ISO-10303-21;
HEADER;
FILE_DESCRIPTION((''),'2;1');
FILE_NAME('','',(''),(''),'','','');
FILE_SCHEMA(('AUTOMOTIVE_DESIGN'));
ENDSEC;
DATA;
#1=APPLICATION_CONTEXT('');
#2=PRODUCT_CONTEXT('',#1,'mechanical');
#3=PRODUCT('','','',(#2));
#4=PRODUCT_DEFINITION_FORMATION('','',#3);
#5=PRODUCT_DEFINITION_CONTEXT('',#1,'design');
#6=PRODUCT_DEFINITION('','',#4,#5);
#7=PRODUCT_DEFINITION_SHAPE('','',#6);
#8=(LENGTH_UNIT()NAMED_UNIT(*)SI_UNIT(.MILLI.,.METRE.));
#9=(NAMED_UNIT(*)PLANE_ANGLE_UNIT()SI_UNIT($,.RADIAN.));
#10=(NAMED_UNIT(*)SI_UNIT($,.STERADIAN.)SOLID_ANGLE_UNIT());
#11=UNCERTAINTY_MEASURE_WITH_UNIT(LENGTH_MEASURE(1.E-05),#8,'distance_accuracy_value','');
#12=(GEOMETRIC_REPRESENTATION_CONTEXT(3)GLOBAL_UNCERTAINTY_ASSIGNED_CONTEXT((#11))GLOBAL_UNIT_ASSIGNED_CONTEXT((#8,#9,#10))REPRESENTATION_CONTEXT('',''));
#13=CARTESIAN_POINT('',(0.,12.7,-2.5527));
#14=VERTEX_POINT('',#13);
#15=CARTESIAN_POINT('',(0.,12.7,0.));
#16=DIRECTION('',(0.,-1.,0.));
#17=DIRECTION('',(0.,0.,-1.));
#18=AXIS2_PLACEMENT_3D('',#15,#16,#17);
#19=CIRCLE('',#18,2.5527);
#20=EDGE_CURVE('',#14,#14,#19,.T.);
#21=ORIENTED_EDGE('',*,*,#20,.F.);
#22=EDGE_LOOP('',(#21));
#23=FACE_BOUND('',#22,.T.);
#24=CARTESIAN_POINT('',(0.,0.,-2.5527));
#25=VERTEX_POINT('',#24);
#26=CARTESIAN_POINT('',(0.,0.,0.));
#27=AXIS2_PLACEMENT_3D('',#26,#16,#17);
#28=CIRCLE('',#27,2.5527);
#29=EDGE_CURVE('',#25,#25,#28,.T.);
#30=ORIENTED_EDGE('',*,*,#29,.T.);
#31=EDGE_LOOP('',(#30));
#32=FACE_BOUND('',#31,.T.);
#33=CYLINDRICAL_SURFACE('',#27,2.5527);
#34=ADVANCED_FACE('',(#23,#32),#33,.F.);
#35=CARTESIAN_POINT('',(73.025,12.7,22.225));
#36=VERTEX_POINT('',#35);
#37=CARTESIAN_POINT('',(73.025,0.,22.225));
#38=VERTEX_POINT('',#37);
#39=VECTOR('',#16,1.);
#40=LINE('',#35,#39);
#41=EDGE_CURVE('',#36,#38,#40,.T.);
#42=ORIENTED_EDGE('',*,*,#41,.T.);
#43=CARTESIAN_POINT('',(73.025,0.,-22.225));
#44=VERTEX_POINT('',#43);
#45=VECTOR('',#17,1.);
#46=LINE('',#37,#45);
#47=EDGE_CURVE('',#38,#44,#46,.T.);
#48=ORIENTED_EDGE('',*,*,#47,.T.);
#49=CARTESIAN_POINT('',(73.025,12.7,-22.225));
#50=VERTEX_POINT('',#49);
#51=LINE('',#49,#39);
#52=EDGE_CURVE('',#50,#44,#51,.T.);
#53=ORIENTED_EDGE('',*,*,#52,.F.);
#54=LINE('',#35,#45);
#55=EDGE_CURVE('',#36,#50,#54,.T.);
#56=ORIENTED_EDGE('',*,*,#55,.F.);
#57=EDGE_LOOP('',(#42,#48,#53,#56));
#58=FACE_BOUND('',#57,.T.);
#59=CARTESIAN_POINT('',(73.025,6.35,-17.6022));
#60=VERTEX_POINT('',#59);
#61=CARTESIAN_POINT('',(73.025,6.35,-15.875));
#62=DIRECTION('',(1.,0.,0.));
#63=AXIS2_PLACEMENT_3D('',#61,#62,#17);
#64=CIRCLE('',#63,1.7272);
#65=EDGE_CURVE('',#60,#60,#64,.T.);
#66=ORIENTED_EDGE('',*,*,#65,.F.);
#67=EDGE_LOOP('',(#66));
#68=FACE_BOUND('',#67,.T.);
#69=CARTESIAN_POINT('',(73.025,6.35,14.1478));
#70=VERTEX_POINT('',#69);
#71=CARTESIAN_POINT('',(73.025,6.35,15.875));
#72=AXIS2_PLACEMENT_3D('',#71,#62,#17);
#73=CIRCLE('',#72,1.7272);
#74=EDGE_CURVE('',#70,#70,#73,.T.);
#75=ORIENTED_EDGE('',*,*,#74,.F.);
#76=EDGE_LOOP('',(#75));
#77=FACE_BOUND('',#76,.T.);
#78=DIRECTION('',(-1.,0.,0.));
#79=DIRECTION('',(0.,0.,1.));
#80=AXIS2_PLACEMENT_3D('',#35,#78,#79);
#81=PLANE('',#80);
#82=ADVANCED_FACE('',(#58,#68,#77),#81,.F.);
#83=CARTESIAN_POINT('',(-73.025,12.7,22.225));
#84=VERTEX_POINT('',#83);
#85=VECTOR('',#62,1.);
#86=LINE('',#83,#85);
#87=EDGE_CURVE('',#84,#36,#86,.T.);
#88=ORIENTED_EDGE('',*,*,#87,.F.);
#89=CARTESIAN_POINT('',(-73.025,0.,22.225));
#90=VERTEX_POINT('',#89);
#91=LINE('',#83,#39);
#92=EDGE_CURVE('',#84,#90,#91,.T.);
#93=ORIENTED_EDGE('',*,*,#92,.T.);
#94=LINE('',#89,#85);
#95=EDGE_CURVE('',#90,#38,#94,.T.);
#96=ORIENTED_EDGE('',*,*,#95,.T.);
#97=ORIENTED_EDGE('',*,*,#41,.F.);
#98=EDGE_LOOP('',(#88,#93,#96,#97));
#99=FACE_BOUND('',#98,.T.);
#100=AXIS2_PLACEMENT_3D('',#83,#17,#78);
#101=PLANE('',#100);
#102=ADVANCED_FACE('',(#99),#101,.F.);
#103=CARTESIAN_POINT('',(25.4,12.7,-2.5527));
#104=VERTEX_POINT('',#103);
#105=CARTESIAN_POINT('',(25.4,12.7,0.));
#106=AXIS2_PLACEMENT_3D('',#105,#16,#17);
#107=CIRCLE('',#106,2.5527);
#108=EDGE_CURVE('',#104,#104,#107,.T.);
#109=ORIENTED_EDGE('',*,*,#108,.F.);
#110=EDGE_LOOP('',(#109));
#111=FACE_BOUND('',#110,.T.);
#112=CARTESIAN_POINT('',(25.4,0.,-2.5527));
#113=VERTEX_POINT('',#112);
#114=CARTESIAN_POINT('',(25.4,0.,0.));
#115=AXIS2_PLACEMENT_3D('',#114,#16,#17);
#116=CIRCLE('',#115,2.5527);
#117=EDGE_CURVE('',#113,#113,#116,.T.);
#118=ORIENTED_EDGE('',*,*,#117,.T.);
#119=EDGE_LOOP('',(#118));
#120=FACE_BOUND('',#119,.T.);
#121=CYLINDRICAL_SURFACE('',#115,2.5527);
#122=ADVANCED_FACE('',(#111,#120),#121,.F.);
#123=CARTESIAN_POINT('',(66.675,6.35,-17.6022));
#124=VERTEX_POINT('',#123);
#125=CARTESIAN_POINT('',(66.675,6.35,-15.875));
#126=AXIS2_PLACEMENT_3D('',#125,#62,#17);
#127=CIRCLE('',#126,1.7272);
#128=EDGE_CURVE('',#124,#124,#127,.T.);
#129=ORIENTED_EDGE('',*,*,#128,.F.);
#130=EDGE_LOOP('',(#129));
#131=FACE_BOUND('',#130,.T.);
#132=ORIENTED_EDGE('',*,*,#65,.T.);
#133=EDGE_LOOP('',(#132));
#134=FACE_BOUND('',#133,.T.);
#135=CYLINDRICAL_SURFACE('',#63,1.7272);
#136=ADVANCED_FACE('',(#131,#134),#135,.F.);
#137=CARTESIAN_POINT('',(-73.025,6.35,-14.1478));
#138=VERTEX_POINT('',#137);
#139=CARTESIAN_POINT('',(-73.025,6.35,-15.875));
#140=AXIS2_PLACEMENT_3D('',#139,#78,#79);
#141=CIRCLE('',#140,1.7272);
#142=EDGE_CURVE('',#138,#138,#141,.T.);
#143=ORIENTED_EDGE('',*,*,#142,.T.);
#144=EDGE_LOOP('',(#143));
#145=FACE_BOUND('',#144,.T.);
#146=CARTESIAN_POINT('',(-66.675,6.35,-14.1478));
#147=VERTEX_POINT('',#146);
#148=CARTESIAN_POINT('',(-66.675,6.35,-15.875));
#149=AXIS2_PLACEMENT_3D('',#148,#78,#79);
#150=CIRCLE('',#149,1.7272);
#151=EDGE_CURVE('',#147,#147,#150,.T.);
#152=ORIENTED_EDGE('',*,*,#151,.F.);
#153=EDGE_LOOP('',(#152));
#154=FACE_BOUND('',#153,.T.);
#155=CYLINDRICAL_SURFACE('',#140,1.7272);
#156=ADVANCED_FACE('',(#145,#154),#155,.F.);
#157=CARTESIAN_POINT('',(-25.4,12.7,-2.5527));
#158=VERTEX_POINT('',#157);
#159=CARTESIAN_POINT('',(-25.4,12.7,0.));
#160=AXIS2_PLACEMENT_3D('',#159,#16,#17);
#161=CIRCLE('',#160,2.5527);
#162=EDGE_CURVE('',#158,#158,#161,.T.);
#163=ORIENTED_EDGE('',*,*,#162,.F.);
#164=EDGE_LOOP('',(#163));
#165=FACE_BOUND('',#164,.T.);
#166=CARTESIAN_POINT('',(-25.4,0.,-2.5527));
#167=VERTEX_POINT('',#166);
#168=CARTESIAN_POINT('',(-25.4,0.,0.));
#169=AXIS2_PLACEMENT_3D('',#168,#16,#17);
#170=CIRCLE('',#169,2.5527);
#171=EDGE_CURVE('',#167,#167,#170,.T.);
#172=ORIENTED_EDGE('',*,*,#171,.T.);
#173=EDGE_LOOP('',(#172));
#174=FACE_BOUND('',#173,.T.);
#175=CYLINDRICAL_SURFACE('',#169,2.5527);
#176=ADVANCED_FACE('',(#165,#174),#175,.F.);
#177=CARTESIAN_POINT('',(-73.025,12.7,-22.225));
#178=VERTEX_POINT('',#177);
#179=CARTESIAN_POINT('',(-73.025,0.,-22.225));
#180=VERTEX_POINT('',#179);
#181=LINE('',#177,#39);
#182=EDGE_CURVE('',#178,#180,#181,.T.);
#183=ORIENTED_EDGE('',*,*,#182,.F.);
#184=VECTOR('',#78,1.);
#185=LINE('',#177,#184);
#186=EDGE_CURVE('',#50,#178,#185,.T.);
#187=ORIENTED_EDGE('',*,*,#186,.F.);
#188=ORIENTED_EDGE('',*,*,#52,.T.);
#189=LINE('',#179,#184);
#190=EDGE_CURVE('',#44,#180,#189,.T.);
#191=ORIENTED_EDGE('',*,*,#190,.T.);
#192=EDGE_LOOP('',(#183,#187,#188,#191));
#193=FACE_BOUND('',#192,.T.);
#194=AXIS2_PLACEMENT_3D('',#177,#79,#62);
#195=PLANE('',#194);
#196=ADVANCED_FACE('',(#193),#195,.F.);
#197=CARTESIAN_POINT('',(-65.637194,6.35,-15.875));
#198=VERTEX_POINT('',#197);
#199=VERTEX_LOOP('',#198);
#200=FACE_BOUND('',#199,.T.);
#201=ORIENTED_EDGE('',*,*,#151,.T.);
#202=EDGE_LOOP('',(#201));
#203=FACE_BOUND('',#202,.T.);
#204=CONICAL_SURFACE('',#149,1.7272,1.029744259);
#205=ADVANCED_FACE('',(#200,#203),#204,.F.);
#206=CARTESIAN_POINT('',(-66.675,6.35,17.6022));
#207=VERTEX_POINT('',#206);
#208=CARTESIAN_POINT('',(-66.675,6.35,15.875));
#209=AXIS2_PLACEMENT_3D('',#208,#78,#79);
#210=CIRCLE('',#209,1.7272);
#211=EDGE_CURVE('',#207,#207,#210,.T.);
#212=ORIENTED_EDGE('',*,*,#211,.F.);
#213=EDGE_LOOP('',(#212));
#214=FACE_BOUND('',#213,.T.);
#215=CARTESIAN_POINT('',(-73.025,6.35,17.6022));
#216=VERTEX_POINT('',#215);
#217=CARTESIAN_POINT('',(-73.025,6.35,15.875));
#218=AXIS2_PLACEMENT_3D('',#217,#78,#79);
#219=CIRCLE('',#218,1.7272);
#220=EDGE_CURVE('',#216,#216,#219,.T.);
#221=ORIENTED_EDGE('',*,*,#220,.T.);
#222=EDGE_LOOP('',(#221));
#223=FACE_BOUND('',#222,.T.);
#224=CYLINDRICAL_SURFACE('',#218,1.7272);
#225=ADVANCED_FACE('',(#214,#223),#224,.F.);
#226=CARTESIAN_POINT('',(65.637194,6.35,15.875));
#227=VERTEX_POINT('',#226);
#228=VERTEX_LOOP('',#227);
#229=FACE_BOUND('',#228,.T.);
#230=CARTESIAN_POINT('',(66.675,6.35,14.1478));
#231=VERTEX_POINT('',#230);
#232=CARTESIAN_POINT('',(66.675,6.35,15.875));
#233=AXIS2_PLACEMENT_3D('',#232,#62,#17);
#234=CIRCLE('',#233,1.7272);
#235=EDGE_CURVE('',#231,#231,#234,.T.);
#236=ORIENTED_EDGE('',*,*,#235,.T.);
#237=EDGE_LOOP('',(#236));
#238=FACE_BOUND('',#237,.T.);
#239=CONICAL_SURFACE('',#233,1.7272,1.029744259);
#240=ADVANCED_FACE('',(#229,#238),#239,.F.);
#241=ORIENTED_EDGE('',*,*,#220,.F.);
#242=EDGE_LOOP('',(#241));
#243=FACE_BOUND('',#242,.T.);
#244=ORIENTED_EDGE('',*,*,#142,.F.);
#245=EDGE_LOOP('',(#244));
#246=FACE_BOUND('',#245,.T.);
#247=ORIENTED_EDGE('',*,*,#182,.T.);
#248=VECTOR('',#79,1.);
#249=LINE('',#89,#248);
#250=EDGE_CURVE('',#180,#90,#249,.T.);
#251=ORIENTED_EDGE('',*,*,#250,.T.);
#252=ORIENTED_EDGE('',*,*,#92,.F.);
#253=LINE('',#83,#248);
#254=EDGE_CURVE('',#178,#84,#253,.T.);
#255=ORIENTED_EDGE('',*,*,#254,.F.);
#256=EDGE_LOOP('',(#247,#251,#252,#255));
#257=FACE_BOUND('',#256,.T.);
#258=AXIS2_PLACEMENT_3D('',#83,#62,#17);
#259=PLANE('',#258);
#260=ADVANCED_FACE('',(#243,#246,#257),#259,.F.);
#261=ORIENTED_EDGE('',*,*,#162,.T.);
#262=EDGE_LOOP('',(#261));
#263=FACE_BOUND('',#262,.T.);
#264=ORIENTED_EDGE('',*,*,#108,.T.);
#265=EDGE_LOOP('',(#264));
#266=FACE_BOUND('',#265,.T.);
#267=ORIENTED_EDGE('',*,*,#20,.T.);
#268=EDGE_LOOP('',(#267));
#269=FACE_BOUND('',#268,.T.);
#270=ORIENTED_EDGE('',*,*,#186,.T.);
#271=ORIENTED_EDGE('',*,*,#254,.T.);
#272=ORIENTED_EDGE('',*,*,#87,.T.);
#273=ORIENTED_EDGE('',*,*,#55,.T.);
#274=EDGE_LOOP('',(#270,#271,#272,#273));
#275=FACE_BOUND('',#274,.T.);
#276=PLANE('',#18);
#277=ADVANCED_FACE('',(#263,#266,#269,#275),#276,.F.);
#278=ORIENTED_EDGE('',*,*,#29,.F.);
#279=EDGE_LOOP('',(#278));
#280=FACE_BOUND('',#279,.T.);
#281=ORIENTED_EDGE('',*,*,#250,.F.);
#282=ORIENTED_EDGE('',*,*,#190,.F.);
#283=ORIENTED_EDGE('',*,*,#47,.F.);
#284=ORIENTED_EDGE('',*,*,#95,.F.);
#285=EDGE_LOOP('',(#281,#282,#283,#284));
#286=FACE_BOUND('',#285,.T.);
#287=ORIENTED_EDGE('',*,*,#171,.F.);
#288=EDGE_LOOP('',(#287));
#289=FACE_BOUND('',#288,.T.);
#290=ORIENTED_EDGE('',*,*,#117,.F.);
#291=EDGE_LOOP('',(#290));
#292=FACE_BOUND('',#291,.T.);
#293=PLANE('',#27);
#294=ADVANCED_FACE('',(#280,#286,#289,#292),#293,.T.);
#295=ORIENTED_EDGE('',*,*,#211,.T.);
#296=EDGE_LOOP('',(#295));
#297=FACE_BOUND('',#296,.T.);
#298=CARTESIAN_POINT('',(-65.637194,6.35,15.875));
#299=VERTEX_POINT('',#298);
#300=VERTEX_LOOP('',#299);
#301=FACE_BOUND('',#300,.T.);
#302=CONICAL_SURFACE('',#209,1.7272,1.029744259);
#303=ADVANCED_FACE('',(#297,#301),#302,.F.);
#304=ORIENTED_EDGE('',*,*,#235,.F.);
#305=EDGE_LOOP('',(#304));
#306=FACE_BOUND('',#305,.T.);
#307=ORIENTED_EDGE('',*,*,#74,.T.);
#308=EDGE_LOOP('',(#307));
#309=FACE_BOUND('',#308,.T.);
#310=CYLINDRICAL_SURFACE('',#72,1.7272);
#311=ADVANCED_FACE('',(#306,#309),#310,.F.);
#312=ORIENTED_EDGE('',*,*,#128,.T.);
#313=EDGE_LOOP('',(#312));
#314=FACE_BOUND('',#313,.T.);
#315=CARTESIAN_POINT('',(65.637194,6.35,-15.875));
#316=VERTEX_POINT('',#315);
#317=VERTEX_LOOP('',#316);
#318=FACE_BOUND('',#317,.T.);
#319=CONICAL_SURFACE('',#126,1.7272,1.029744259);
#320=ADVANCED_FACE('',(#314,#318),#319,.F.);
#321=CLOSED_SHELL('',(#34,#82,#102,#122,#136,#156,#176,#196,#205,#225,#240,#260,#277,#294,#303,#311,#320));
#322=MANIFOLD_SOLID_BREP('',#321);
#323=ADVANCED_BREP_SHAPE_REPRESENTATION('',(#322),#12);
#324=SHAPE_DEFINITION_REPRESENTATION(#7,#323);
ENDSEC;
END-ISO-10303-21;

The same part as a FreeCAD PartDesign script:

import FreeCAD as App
import Part
import Sketcher

V = App.Vector
Q = App.Units.Quantity

doc = App.newDocument("Part")
body = doc.addObject("PartDesign::Body", "Body")

sketch1 = doc.addObject("Sketcher::SketchObject", "Sketch")
body.addObject(sketch1)
sketch1.AttachmentSupport = (doc.XZ_Plane, [""])
sketch1.MapMode = "FlatFace"
sketch1.addGeometry([
    Part.LineSegment(V(-73, -22, 0), V(-73, 22, 0)),
    Part.LineSegment(V(-73, 22, 0), V(73, 22, 0)),
    Part.LineSegment(V(73, 22, 0), V(73, -22, 0)),
    Part.LineSegment(V(73, -22, 0), V(-73, -22, 0)),
], False)
sketch1.addConstraint([
    Sketcher.Constraint("Coincident", 0, 2, 1, 1),
    Sketcher.Constraint("Coincident", 1, 2, 2, 1),
    Sketcher.Constraint("Coincident", 2, 2, 3, 1),
    Sketcher.Constraint("Coincident", 3, 2, 0, 1),
    Sketcher.Constraint("Vertical", 0),
    Sketcher.Constraint("Horizontal", 1),
    Sketcher.Constraint("Vertical", 2),
    Sketcher.Constraint("Horizontal", 3),
    Sketcher.Constraint("Symmetric", 0, 2, 2, 2, -1, 1),
    Sketcher.Constraint("DistanceX", 1, 1, 1, 2, Q("5.75 in")),
    Sketcher.Constraint("DistanceY", 0, 1, 0, 2, Q("1.75 in")),
])
pad1 = doc.addObject("PartDesign::Pad", "Pad")
body.addObject(pad1)
pad1.Profile = sketch1
pad1.Length = Q("0.5 in")
pad1.Reversed = True

sketch2 = doc.addObject("Sketcher::SketchObject", "Sketch001")
body.addObject(sketch2)
sketch2.AttachmentSupport = (doc.XZ_Plane, [""])
sketch2.MapMode = "FlatFace"
sketch2.addGeometry([
    Part.Circle(V(0, 0, 0), V(0, 0, 1), 2.6),
    Part.Circle(V(25.4, 0, 0), V(0, 0, 1), 2.6),
    Part.Circle(V(-25.4, 0, 0), V(0, 0, 1), 2.6),
], False)
sketch2.addConstraint([
    Sketcher.Constraint("Coincident", 0, 3, -1, 1),
    Sketcher.Constraint("Equal", 0, 1),
    Sketcher.Constraint("Equal", 1, 2),
    Sketcher.Constraint("Symmetric", 1, 3, 2, 3, -1, 1),
    Sketcher.Constraint("PointOnObject", 1, 3, -1),
    Sketcher.Constraint("Diameter", 0, Q("0.201 in")),
    Sketcher.Constraint("DistanceX", -1, 1, 1, 3, Q("1 in")),
])
doc.recompute()
hole = doc.addObject("PartDesign::Hole", "Hole")
body.addObject(hole)
hole.Profile = sketch2
hole.ThreadType = "None"
hole.Diameter = Q("0.201 in")
hole.DepthType = "ThroughAll"

sketch3 = doc.addObject("Sketcher::SketchObject", "Sketch002")
body.addObject(sketch3)
sketch3.AttachmentSupport = (doc.XZ_Plane, [""])
sketch3.MapMode = "FlatFace"
sketch3.AttachmentOffset = App.Placement(V(0, 0, -0.25 * 25.4), App.Rotation())
sketch3.addGeometry([
    Part.LineSegment(V(-65.6, -15.9, 0), V(-73, -15.9, 0)),
    Part.LineSegment(V(-73, -15.9, 0), V(-73, -14.1, 0)),
    Part.LineSegment(V(-73, -14.1, 0), V(-66.7, -14.1, 0)),
    Part.LineSegment(V(-66.7, -14.1, 0), V(-65.6, -15.9, 0)),
], False)
sketch3.addGeometry(Part.LineSegment(V(-73, -15.9, 0), V(-65.6, -15.9, 0)), True)
sketch3.addConstraint([
    Sketcher.Constraint("Coincident", 0, 2, 1, 1),
    Sketcher.Constraint("Coincident", 1, 2, 2, 1),
    Sketcher.Constraint("Coincident", 2, 2, 3, 1),
    Sketcher.Constraint("Coincident", 3, 2, 0, 1),
    Sketcher.Constraint("Horizontal", 0),
    Sketcher.Constraint("Vertical", 1),
    Sketcher.Constraint("Horizontal", 2),
    Sketcher.Constraint("Horizontal", 4),
    Sketcher.Constraint("Coincident", 4, 1, 0, 2),
    Sketcher.Constraint("Equal", 0, 4),
    Sketcher.Constraint("Angle", 3, Q("-59 deg")),
    Sketcher.Constraint("DistanceX", 2, 1, 2, 2, Q("0.25 in")),
    Sketcher.Constraint("DistanceY", 1, 1, 1, 2, Q("0.068 in")),
    Sketcher.Constraint("DistanceX", 0, 2, -1, 1, Q("2.875 in")),
    Sketcher.Constraint("DistanceY", 0, 2, -1, 1, Q("0.625 in")),
])
groove = doc.addObject("PartDesign::Groove", "Groove")
body.addObject(groove)
groove.Profile = sketch3
groove.ReferenceAxis = (sketch3, ["Axis0"])
groove.Angle = 360
doc.recompute()

linearpattern = doc.addObject("PartDesign::LinearPattern", "LinearPattern")
body.addObject(linearpattern)
linearpattern.Originals = [groove]
linearpattern.Direction = (doc.Z_Axis, [""])
linearpattern.Mode = "offset"
linearpattern.Offset = Q("1.25 in")
linearpattern.Occurrences = 2
body.Tip = linearpattern
doc.recompute()

mirrored = doc.addObject("PartDesign::Mirrored", "Mirrored")
body.addObject(mirrored)
mirrored.Originals = [groove]
mirrored.MirrorPlane = (doc.YZ_Plane, [""])
body.Tip = mirrored

sketch4 = doc.addObject("Sketcher::SketchObject", "Sketch003")
body.addObject(sketch4)
sketch4.AttachmentSupport = (doc.XZ_Plane, [""])
sketch4.MapMode = "FlatFace"
sketch4.AttachmentOffset = App.Placement(V(0, 0, -0.25 * 25.4), App.Rotation())
sketch4.addGeometry([
    Part.LineSegment(V(73, 15.9, 0), V(65.6, 15.9, 0)),
    Part.LineSegment(V(65.6, 15.9, 0), V(66.7, 17.6, 0)),
    Part.LineSegment(V(66.7, 17.6, 0), V(73, 17.6, 0)),
    Part.LineSegment(V(73, 17.6, 0), V(73, 15.9, 0)),
], False)
sketch4.addGeometry(Part.LineSegment(V(65.6, 15.9, 0), V(73, 15.9, 0)), True)
sketch4.addConstraint([
    Sketcher.Constraint("Coincident", 0, 2, 1, 1),
    Sketcher.Constraint("Coincident", 1, 2, 2, 1),
    Sketcher.Constraint("Coincident", 2, 2, 3, 1),
    Sketcher.Constraint("Coincident", 3, 2, 0, 1),
    Sketcher.Constraint("Horizontal", 0),
    Sketcher.Constraint("Horizontal", 2),
    Sketcher.Constraint("Vertical", 3),
    Sketcher.Constraint("Horizontal", 4),
    Sketcher.Constraint("Coincident", 4, 1, 0, 2),
    Sketcher.Constraint("Vertical", 2, 2, 4, 2),
    Sketcher.Constraint("Angle", 1, Q("59 deg")),
    Sketcher.Constraint("DistanceX", 2, 1, 2, 2, Q("0.25 in")),
    Sketcher.Constraint("DistanceY", 3, 2, 3, 1, Q("0.068 in")),
    Sketcher.Constraint("DistanceY", -1, 1, 0, 2, Q("0.625 in")),
    Sketcher.Constraint("DistanceX", -1, 1, 1, 2, Q("2.625 in")),
])
groove2 = doc.addObject("PartDesign::Groove", "Groove001")
body.addObject(groove2)
groove2.Profile = sketch4
groove2.ReferenceAxis = (sketch4, ["Axis0"])
groove2.Angle = 360

doc.recompute()
